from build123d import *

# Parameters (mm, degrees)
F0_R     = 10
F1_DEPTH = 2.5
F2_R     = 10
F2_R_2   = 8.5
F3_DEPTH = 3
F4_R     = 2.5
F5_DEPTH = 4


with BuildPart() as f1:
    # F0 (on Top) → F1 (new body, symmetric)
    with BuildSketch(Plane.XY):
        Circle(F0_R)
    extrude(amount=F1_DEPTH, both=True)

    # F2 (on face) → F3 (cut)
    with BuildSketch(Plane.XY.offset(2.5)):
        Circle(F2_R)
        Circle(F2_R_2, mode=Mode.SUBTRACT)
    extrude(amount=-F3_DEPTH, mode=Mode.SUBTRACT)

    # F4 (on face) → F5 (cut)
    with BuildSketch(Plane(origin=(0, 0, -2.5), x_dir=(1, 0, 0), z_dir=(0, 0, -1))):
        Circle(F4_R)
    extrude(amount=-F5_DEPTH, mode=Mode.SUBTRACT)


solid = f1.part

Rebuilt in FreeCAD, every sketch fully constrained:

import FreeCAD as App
import Part
import Sketcher

V = App.Vector

doc = App.newDocument("Part")
params = doc.addObject("Spreadsheet::Sheet", "Params")
for row, (alias, value) in enumerate([
    ("sketch1_diameter", "20 mm"),
    ("pad1_length", "5 mm"),
    ("sketch2_diameter", "20 mm"),
    ("sketch2_diameter2", "17 mm"),
    ("pocket1_length", "3 mm"),
    ("sketch3_diameter", "5 mm"),
    ("pocket2_length", "4 mm"),
], start=1):
    params.set(f"A{row}", alias)
    params.set(f"B{row}", "=" + value)
    params.setAlias(f"B{row}", alias)

body = doc.addObject("PartDesign::Body", "Body")

# Sketch on XY plane
sketch1 = body.newObject("Sketcher::SketchObject", "Sketch")
sketch1.AttachmentSupport = (doc.getObject("XY_Plane"), [""])
sketch1.MapMode = "FlatFace"
sketch1.addGeometry(Part.Circle(V(0, 0, 0), V(0, 0, 1), 10), False)
sketch1.addConstraint([
    Sketcher.Constraint("Coincident", 0, 3, -1, 1),
    Sketcher.Constraint("Diameter", 0, 20.0),
])
sketch1.setExpression("Constraints[1]", "Params.sketch1_diameter")
pad1 = body.newObject("PartDesign::Pad", "Pad")
pad1.Profile = sketch1
pad1.setExpression("Length", "Params.pad1_length")
pad1.Midplane = True

# Sketch on XY plane
sketch2 = body.newObject("Sketcher::SketchObject", "Sketch001")
sketch2.AttachmentSupport = (doc.getObject("XY_Plane"), [""])
sketch2.MapMode = "FlatFace"
sketch2.AttachmentOffset = App.Placement(V(0, 0, 2.5), App.Rotation())
sketch2.addGeometry([
    Part.Circle(V(0, 0, 0), V(0, 0, 1), 10),
    Part.Circle(V(0, 0, 0), V(0, 0, 1), 8),
], False)
sketch2.addConstraint([
    Sketcher.Constraint("Coincident", 0, 3, -1, 1),
    Sketcher.Constraint("Coincident", 1, 3, -1, 1),
    Sketcher.Constraint("Diameter", 0, 20.0),
    Sketcher.Constraint("Diameter", 1, 17.0),
])
sketch2.setExpression("Constraints[2]", "Params.sketch2_diameter")
sketch2.setExpression("Constraints[3]", "Params.sketch2_diameter2")
pocket1 = body.newObject("PartDesign::Pocket", "Pocket")
pocket1.Profile = sketch2
pocket1.setExpression("Length", "Params.pocket1_length")

# Sketch on XY plane
sketch3 = body.newObject("Sketcher::SketchObject", "Sketch002")
sketch3.AttachmentSupport = (doc.getObject("XY_Plane"), [""])
sketch3.MapMode = "FlatFace"
sketch3.AttachmentOffset = App.Placement(V(0, 0, -2.5), App.Rotation())
sketch3.addGeometry(Part.Circle(V(0, 0, 0), V(0, 0, 1), 2.5), False)
sketch3.addConstraint([
    Sketcher.Constraint("Coincident", 0, 3, -1, 1),
    Sketcher.Constraint("Diameter", 0, 5.0),
])
sketch3.setExpression("Constraints[1]", "Params.sketch3_diameter")
pocket2 = body.newObject("PartDesign::Pocket", "Pocket001")
pocket2.Profile = sketch3
pocket2.setExpression("Length", "Params.pocket2_length")
pocket2.Reversed = True

doc.recompute()
